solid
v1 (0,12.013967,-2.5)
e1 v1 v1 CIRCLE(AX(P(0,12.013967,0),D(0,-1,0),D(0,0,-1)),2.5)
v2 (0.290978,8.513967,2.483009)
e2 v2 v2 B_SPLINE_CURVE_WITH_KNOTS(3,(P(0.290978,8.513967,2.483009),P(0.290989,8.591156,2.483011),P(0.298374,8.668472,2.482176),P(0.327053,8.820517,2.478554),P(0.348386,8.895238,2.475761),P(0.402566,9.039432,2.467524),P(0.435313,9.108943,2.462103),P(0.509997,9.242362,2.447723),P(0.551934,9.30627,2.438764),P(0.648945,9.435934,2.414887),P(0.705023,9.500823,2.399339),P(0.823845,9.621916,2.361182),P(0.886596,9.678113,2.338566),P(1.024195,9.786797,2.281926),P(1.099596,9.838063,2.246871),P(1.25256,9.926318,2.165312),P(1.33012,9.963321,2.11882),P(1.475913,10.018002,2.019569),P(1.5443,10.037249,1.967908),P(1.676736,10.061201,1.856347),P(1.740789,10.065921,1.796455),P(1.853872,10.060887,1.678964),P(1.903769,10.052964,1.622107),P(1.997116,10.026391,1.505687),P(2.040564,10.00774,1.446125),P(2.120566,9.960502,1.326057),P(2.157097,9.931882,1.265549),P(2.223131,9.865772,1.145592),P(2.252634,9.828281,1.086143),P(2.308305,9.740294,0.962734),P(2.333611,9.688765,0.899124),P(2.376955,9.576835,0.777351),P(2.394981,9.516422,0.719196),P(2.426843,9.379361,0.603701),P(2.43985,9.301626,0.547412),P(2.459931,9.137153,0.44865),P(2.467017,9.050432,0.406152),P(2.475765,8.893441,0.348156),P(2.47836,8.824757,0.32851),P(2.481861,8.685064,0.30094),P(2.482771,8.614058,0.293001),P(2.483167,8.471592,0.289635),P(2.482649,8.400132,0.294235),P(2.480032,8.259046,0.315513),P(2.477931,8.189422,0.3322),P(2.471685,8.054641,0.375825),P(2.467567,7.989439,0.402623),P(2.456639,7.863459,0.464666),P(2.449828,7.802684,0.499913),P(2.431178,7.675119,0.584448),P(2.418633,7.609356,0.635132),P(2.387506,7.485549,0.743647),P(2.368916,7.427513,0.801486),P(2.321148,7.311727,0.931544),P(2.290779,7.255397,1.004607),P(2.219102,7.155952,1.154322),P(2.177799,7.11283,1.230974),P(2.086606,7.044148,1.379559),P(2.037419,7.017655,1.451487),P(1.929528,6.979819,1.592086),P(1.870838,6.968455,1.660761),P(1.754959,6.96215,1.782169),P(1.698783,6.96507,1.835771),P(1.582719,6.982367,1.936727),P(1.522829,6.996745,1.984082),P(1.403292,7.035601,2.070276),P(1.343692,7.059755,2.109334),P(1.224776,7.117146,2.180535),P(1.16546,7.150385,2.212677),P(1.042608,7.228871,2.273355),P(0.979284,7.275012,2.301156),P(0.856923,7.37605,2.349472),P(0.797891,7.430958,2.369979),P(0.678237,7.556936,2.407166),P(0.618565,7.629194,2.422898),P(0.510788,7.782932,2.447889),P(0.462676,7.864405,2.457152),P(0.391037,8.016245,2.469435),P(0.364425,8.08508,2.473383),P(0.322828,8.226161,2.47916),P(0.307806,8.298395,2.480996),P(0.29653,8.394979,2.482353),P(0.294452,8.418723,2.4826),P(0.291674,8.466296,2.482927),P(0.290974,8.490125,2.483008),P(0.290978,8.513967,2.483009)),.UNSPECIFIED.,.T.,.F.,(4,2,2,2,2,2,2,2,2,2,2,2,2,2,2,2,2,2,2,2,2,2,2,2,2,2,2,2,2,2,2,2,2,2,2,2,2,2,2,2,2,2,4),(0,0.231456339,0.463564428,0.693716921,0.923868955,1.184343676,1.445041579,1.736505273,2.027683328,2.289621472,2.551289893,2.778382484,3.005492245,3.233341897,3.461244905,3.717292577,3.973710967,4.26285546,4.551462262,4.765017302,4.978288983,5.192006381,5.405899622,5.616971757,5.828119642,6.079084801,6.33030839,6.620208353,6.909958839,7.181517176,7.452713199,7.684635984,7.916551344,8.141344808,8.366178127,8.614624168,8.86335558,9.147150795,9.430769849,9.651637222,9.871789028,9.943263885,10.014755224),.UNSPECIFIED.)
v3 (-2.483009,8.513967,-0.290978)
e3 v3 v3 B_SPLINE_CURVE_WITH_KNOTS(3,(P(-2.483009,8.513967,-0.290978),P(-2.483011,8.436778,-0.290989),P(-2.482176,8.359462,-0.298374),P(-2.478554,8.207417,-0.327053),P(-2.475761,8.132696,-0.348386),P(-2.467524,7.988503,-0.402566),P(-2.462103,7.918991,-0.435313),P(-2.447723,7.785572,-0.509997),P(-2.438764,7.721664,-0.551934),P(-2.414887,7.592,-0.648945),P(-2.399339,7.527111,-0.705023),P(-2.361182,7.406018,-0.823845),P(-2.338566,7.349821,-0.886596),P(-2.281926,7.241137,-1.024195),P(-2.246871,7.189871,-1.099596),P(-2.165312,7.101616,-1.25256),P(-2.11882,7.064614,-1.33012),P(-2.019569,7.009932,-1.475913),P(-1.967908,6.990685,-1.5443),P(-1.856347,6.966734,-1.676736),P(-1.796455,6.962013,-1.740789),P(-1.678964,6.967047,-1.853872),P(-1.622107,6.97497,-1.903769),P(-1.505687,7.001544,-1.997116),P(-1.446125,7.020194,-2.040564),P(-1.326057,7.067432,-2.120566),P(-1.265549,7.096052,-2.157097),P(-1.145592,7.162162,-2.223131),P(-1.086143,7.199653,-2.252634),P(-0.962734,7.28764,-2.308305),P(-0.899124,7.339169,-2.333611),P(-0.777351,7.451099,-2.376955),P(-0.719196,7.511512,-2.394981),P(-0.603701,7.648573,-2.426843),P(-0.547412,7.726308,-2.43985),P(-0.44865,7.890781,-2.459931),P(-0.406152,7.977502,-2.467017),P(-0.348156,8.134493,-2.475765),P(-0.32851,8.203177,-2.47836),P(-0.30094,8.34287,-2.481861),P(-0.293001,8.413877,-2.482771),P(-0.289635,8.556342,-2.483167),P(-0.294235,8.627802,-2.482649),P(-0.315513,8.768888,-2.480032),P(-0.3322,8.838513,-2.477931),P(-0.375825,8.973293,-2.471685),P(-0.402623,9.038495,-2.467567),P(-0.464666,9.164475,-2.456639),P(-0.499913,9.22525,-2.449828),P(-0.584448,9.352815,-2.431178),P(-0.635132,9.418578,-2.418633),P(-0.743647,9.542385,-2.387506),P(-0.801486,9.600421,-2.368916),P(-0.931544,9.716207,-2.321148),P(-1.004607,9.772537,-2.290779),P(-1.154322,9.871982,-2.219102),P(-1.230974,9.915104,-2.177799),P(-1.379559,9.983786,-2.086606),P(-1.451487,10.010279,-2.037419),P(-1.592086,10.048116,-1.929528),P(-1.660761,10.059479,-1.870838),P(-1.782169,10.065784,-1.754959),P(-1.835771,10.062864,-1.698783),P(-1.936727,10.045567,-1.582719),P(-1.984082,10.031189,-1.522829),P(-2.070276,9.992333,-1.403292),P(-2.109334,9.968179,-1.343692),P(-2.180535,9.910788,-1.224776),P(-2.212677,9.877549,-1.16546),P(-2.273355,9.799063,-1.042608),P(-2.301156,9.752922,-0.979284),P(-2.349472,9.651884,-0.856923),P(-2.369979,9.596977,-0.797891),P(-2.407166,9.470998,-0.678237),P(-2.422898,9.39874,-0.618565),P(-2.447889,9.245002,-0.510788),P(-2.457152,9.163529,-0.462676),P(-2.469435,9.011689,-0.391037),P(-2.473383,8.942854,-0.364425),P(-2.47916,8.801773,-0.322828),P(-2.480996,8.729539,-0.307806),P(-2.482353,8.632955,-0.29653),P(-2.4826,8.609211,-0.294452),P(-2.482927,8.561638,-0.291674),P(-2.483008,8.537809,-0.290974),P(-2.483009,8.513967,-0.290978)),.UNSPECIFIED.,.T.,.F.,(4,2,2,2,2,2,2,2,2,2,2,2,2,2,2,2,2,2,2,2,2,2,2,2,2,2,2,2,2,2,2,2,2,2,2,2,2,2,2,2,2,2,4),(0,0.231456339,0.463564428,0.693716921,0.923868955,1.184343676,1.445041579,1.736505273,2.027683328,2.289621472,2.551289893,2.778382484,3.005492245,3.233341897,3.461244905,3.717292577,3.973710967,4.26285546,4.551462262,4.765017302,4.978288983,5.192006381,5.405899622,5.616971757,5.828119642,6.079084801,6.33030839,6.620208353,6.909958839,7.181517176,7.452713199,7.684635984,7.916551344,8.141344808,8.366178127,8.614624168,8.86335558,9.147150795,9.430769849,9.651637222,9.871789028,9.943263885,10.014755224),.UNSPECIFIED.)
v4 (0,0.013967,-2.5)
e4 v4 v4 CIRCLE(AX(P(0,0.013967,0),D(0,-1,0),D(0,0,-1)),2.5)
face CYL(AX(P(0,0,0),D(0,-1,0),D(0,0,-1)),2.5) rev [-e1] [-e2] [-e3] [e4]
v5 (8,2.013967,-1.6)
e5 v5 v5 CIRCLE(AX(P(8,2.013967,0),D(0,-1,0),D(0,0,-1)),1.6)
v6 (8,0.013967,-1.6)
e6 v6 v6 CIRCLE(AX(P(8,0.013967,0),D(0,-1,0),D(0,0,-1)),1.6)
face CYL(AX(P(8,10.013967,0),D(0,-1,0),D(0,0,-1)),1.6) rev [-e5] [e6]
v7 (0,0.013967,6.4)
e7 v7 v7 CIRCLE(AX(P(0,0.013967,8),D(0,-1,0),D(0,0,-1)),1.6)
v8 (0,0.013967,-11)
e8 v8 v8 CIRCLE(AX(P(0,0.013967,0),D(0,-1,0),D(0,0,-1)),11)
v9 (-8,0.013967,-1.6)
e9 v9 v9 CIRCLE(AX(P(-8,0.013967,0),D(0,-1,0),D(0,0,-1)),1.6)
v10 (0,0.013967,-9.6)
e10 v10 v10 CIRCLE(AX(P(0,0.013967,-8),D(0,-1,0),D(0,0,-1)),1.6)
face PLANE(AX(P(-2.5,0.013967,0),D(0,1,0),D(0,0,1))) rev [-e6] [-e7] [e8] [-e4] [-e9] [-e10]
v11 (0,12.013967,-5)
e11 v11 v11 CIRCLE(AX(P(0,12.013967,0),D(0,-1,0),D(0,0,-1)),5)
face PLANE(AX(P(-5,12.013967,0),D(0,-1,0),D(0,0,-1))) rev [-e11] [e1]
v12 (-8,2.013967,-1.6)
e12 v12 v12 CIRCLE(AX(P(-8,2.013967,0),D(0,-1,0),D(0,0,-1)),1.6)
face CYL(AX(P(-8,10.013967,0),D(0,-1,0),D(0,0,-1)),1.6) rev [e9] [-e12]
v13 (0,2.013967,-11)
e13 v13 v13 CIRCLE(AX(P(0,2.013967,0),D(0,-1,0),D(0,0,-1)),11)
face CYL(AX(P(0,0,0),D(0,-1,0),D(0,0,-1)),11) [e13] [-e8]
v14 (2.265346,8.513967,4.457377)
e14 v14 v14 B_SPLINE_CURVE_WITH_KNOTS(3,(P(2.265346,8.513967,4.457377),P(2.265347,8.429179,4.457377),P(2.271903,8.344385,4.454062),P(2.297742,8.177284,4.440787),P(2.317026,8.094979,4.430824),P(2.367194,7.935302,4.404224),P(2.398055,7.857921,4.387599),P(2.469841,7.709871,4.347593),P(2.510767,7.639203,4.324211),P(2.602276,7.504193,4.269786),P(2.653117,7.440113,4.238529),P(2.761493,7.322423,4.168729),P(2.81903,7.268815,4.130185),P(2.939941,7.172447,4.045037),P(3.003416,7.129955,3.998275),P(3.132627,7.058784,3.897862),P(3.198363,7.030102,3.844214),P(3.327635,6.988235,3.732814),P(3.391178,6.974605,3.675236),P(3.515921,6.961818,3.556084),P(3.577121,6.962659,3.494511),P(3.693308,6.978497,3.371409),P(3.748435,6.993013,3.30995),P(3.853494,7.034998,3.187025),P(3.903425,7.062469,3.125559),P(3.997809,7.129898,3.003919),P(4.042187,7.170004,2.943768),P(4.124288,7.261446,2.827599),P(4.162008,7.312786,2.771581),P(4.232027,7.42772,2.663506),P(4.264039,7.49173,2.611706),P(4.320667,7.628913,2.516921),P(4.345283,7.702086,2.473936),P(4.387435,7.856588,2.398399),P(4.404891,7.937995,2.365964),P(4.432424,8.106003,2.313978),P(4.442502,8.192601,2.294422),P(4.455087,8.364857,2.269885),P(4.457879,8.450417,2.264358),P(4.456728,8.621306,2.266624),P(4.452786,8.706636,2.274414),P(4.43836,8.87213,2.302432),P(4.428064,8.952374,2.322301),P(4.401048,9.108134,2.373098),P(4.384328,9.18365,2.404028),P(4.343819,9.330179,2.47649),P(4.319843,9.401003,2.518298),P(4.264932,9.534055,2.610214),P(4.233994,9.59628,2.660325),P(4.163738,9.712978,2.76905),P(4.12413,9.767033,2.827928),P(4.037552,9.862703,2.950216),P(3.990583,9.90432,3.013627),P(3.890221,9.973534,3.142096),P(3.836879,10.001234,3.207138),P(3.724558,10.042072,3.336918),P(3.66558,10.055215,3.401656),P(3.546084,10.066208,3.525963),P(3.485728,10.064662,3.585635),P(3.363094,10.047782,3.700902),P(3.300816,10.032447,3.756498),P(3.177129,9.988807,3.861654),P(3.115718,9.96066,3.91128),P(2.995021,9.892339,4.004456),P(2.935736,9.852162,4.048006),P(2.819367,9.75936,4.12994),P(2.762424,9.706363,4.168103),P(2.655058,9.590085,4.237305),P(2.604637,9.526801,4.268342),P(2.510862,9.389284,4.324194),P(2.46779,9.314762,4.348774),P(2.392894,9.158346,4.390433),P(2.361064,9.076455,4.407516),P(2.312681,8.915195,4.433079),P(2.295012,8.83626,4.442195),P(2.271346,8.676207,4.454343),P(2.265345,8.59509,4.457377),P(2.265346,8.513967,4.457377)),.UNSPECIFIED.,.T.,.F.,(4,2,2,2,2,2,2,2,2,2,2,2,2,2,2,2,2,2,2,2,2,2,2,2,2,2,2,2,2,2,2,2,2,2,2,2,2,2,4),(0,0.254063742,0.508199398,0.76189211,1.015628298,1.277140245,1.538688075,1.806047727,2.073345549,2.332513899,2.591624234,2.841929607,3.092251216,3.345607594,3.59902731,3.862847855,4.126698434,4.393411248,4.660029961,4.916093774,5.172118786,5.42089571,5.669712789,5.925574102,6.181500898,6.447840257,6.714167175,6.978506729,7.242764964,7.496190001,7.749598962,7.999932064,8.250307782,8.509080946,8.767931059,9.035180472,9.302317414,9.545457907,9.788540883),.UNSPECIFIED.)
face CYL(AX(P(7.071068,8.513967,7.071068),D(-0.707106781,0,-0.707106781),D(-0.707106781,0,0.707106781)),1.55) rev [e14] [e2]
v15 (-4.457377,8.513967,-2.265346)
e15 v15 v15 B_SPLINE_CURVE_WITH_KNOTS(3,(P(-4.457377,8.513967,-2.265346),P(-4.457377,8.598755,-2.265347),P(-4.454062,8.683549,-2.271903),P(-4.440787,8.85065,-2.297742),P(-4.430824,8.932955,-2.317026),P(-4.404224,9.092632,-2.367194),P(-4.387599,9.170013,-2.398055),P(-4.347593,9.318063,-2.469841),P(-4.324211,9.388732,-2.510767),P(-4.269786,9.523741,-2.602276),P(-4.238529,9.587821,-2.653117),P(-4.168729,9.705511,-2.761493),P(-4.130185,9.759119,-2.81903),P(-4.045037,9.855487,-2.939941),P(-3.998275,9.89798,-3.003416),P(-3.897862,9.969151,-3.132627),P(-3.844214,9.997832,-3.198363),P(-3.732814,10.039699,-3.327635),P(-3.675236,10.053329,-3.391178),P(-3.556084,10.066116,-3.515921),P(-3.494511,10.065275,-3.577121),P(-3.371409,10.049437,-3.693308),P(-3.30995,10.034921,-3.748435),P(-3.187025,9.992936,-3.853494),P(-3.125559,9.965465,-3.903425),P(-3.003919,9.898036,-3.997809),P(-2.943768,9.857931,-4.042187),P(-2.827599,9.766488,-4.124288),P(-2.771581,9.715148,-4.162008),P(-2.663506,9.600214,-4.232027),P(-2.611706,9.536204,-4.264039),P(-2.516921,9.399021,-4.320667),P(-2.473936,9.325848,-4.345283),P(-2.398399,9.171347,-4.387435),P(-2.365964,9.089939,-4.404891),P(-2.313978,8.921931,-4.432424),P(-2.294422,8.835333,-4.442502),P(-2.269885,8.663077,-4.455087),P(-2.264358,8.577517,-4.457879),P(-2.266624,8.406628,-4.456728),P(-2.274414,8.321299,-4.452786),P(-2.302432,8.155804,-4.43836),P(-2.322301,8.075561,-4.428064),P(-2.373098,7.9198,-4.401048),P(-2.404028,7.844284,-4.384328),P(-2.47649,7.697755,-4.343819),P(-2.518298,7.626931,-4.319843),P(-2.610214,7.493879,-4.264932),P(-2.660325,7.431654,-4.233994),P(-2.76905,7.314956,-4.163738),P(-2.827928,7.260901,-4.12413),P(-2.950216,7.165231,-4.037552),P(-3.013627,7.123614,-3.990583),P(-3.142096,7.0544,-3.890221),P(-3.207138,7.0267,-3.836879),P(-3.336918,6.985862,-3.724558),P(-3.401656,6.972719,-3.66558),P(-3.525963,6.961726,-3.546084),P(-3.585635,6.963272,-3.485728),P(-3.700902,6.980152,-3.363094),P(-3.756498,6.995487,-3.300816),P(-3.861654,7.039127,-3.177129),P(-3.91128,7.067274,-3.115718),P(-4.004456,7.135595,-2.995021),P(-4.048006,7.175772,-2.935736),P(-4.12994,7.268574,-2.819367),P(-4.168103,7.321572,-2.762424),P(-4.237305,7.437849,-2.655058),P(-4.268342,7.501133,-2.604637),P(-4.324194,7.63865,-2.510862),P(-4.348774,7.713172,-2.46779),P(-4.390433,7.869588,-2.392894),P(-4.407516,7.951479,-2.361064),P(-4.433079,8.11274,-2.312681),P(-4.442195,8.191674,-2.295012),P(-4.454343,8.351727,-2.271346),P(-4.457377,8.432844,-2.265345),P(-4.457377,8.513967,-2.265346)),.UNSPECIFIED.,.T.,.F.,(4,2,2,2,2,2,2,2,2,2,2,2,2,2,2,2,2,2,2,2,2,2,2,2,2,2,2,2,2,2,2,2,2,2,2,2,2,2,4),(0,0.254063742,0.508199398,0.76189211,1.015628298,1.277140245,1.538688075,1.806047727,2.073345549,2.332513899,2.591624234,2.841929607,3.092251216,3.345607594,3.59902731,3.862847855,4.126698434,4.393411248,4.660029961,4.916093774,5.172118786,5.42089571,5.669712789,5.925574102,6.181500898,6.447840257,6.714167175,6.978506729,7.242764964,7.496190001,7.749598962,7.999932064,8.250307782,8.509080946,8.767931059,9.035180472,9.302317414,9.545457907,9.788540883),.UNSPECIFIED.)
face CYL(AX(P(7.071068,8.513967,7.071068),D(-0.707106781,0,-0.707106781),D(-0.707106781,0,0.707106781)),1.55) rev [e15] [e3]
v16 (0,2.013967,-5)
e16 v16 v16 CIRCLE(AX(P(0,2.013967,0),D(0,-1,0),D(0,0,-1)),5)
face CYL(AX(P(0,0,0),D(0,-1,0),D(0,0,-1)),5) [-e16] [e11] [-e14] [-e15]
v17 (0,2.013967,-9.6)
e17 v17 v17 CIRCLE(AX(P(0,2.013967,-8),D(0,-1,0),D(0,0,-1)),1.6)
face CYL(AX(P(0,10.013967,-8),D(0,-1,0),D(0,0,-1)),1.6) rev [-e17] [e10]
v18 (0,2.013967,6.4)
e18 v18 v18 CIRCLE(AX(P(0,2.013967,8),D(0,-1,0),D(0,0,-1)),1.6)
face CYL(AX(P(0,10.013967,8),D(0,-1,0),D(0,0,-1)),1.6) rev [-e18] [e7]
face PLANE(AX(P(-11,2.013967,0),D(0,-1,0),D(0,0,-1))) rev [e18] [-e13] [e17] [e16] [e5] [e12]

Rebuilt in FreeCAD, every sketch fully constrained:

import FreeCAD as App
import Part
import Sketcher
Q = App.Units.Quantity


def add_polygon(sketch, points):
    """Adds a closed chain of lines whose ends are joined by coincident constraints."""
    first, n = sketch.GeometryCount, len(points)
    for a, b in zip(points, points[1:] + points[:1]):
        sketch.addGeometry(Part.LineSegment(App.Vector(*a, 0), App.Vector(*b, 0)), False)
    for i in range(n):
        sketch.addConstraint(Sketcher.Constraint("Coincident", first + i, 2, first + (i + 1) % n, 1))

doc = App.newDocument("Part")
body = doc.addObject("PartDesign::Body", "Body")

sketch1 = body.newObject("Sketcher::SketchObject", "Sketch")
sketch1.AttachmentSupport = (doc.getObject("XY_Plane"), [""])
sketch1.MapMode = "FlatFace"
add_polygon(sketch1, [(-11, 0), (-2.5, 0), (-2.5, 12), (-5, 12), (-5, 2), (-11, 2)])
sketch1.addConstraint(Sketcher.Constraint("Horizontal", 0))
sketch1.addConstraint(Sketcher.Constraint("Vertical", 1))
sketch1.addConstraint(Sketcher.Constraint("Horizontal", 2))
sketch1.addConstraint(Sketcher.Constraint("Vertical", 3))
sketch1.addConstraint(Sketcher.Constraint("Horizontal", 4))
sketch1.addConstraint(Sketcher.Constraint("Vertical", 5))
sketch1.addConstraint(Sketcher.Constraint("DistanceX", 4, 2, 4, 1, Q("6 mm")))
sketch1.addConstraint(Sketcher.Constraint("DistanceY", 1, 1, 1, 2, Q("12 mm")))
sketch1.addConstraint(Sketcher.Constraint("DistanceY", 3, 2, 3, 1, Q("10 mm")))
sketch1.addConstraint(Sketcher.Constraint("DistanceX", 0, 1, 0, 2, Q("8.5 mm")))
sketch1.addConstraint(Sketcher.Constraint("DistanceX", 2, 2, -1, 1, Q("5 mm")))
sketch1.addConstraint(Sketcher.Constraint("DistanceY", -1, 1, 0, 2, Q("0.013967 mm")))
revolution = body.newObject("PartDesign::Revolution", "Revolution")
revolution.Profile = sketch1
revolution.ReferenceAxis = (sketch1, ["V_Axis"])
revolution.Angle = 360

sketch2 = body.newObject("Sketcher::SketchObject", "Sketch001")
sketch2.AttachmentSupport = (doc.getObject("XZ_Plane"), [""])
sketch2.MapMode = "FlatFace"
sketch2.AttachmentOffset = App.Placement(App.Vector(0, 0, -0.013967), App.Rotation())
sketch2.addGeometry(Part.Circle(App.Vector(-8, 0, 0), App.Vector(0, 0, 1), 1.6), False)
sketch2.addGeometry(Part.Circle(App.Vector(0, 8, 0), App.Vector(0, 0, 1), 1.6), False)
sketch2.addGeometry(Part.Circle(App.Vector(8, 0, 0), App.Vector(0, 0, 1), 1.6), False)
sketch2.addGeometry(Part.Circle(App.Vector(0, -8, 0), App.Vector(0, 0, 1), 1.6), False)
sketch2.addConstraint(Sketcher.Constraint("Equal", 0, 1))
sketch2.addConstraint(Sketcher.Constraint("Equal", 1, 2))
sketch2.addConstraint(Sketcher.Constraint("Equal", 2, 3))
sketch2.addConstraint(Sketcher.Constraint("Symmetric", 0, 3, 2, 3, -1, 1))
sketch2.addConstraint(Sketcher.Constraint("Symmetric", 1, 3, 3, 3, -1, 1))
sketch2.addConstraint(Sketcher.Constraint("PointOnObject", 0, 3, -1))
sketch2.addConstraint(Sketcher.Constraint("PointOnObject", 1, 3, -2))
sketch2.addConstraint(Sketcher.Constraint("Diameter", 0, Q("3.2 mm")))
sketch2.addConstraint(Sketcher.Constraint("DistanceX", 0, 3, -1, 1, Q("8 mm")))
sketch2.addConstraint(Sketcher.Constraint("DistanceY", -1, 1, 1, 3, Q("8 mm")))
pocket1 = body.newObject("PartDesign::Pocket", "Pocket")
pocket1.Profile = sketch2
pocket1.Length = 10

sketch3 = body.newObject("Sketcher::SketchObject", "Sketch002")
sketch3.Placement = App.Placement(App.Vector(0, 0, 0), App.Rotation(App.Vector(0, -1, 0), App.Vector(0.707106781, 0, -0.707106781), App.Vector(0.707106781, 0, 0.707106781), "ZXY"))
sketch3.addGeometry(Part.Circle(App.Vector(-8.5, 0, 0), App.Vector(0, 0, 1), 1.6), False)
sketch3.addConstraint(Sketcher.Constraint("PointOnObject", 0, 3, -1))
sketch3.addConstraint(Sketcher.Constraint("Diameter", 0, Q("3.1 mm")))
sketch3.addConstraint(Sketcher.Constraint("DistanceX", 0, 3, -1, 1, Q("8.513967 mm")))
pocket2 = body.newObject("PartDesign::Pocket", "Pocket001")
pocket2.Profile = sketch3
pocket2.Type = "ThroughAll"
pocket2.Midplane = True

doc.recompute()
